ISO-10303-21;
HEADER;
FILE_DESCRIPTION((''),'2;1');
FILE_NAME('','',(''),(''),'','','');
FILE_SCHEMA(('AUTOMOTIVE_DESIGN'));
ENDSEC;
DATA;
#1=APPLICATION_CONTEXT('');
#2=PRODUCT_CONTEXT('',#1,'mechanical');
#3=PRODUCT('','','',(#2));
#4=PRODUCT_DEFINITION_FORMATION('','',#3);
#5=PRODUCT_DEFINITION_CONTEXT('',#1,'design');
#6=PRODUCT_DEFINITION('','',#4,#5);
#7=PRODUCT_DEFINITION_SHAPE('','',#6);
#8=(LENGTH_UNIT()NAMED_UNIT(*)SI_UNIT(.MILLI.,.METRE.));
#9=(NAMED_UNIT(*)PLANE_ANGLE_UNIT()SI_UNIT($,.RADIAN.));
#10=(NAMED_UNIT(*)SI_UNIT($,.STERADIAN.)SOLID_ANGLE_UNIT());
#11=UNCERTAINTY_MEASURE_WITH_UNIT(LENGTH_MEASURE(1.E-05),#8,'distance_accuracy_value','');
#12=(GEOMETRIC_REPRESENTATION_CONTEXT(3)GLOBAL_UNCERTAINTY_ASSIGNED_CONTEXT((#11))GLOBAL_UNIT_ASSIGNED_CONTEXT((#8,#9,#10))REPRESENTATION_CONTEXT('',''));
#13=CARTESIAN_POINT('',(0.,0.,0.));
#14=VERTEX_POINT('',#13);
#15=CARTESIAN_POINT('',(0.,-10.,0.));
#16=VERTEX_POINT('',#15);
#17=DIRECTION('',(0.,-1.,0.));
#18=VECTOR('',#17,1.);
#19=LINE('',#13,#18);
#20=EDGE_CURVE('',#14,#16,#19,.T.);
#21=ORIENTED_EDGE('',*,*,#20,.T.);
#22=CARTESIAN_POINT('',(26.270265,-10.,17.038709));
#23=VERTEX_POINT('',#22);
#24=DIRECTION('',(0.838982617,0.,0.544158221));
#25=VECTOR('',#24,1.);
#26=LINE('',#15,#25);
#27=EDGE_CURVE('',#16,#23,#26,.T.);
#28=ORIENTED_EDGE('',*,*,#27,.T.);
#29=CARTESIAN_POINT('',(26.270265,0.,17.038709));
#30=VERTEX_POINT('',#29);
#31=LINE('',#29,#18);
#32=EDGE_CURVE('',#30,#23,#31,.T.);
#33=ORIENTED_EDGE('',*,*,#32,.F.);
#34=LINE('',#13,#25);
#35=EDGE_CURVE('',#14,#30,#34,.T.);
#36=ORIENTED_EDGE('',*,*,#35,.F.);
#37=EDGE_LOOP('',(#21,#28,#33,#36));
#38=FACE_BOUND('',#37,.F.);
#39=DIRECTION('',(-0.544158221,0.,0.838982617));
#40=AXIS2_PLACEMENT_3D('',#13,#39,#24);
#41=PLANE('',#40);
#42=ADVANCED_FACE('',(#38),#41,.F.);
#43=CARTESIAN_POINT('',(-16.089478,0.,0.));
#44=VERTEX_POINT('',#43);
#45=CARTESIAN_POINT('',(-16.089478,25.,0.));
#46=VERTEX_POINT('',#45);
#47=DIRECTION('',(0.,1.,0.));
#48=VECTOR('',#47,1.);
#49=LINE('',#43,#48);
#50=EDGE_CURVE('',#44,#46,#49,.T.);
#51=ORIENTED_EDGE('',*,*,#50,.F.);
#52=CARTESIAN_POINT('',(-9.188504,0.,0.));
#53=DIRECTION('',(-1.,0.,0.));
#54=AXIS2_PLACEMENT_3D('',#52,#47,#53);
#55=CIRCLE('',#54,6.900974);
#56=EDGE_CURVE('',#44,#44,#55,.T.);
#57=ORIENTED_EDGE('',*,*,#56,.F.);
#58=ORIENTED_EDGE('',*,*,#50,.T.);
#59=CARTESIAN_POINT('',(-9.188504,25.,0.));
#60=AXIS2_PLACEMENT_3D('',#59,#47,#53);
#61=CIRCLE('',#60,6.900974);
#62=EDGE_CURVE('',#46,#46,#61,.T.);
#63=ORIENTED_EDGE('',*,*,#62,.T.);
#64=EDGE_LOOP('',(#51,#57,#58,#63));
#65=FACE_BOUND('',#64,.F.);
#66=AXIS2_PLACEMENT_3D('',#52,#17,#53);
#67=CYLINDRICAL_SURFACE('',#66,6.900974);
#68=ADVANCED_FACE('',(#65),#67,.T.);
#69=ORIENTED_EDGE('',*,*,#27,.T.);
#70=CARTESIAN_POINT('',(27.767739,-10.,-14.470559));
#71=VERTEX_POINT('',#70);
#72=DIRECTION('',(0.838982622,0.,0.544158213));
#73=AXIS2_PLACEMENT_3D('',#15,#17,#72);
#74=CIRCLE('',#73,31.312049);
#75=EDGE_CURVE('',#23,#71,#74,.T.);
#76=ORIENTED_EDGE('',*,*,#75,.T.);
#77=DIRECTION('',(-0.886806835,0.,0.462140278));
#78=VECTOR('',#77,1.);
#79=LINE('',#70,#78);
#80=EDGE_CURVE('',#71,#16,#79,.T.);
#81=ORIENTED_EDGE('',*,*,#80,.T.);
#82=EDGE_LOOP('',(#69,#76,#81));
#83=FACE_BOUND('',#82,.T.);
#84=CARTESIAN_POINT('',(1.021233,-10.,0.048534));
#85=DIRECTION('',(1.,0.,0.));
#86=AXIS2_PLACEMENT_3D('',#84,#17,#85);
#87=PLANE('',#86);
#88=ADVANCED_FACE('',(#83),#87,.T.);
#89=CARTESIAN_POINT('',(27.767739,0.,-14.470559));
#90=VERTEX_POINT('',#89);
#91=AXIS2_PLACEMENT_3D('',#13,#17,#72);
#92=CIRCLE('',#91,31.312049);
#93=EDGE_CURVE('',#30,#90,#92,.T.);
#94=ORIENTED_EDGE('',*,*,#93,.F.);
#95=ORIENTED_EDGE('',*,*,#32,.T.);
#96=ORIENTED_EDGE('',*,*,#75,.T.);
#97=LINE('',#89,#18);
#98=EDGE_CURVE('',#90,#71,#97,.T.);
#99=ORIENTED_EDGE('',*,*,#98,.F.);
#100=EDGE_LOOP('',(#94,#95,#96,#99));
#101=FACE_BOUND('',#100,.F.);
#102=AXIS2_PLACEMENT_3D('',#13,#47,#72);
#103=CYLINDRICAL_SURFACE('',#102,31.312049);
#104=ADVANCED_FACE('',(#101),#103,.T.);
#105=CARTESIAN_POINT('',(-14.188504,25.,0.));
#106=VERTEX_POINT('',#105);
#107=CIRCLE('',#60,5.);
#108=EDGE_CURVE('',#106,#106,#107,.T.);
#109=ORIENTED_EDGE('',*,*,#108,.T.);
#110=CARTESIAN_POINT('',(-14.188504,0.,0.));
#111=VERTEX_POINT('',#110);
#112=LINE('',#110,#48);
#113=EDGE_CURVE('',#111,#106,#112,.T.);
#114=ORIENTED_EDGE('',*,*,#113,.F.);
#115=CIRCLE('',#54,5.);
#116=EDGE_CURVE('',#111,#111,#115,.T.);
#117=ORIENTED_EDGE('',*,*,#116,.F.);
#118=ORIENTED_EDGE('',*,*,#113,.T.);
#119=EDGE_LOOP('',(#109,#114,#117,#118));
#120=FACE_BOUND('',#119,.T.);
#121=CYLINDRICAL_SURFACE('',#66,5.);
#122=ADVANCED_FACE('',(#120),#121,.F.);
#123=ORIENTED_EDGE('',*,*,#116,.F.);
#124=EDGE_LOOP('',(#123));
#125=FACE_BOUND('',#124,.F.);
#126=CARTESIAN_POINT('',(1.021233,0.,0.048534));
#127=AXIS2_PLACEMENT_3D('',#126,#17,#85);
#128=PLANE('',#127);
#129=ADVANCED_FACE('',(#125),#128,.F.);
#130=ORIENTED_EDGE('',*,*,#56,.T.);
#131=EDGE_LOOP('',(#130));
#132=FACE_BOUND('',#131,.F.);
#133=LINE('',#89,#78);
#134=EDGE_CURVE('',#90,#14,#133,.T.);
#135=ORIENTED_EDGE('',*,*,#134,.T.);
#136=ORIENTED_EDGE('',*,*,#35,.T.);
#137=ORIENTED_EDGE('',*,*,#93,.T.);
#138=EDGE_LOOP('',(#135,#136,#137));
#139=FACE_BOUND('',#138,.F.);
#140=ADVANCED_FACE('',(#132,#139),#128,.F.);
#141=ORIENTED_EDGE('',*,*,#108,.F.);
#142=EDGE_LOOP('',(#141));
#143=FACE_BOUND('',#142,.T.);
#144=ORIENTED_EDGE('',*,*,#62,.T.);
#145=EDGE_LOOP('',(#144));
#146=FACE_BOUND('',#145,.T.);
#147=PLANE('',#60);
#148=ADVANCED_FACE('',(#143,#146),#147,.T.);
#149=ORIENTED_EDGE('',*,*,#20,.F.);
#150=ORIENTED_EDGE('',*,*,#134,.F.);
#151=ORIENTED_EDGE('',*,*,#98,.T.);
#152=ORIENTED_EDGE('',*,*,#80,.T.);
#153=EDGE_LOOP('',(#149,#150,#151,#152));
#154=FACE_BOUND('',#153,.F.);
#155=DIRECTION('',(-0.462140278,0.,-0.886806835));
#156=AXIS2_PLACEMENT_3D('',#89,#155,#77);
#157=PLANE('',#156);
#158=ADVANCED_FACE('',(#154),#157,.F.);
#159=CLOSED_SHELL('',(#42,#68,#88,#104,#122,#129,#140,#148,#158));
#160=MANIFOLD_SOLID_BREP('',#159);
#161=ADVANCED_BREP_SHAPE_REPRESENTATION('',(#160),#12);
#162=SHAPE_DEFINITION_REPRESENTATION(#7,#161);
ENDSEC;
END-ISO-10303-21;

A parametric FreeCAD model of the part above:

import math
import FreeCAD as App
import Part
import Sketcher
from FreeCAD import Vector

doc = App.newDocument("Part")
body = doc.addObject("PartDesign::Body", "Body")

# Sketch on XZ plane
sketch1 = doc.addObject("Sketcher::SketchObject", "Sketch")
body.addObject(sketch1)
sketch1.AttachmentSupport = (doc.XZ_Plane, [""])
sketch1.MapMode = "FlatFace"
sketch1.addGeometry(Part.LineSegment(Vector(0, 0, 0), Vector(26, 17, 0)), False)
sketch1.addGeometry(Part.ArcOfCircle(Part.Circle(Vector(0, 0, 0), Vector(0, 0, 1), 31), math.radians(33), math.radians(332)), False)
sketch1.addGeometry(Part.LineSegment(Vector(28, -14, 0), Vector(0, 0, 0)), False)
sketch1.addConstraint(Sketcher.Constraint("Coincident", 0, 2, 1, 1))
sketch1.addConstraint(Sketcher.Constraint("Coincident", 1, 2, 2, 1))
sketch1.addConstraint(Sketcher.Constraint("Coincident", 2, 2, 0, 1))
sketch1.addConstraint(Sketcher.Constraint("Coincident", 1, 3, -1, 1))
sketch1.addConstraint(Sketcher.Constraint("Coincident", 2, 2, -1, 1))
sketch1.addConstraint(Sketcher.Constraint("Radius", 1, 31.312049))
sketch1.addConstraint(Sketcher.Constraint("DistanceY", -1, 1, 0, 2, 17.038709))
sketch1.addConstraint(Sketcher.Constraint("DistanceX", -1, 1, 1, 2, 27.767739))
pad1 = doc.addObject("PartDesign::Pad", "Pad")
body.addObject(pad1)
pad1.Profile = sketch1
pad1.Length = 10

# Sketch on XZ plane
sketch2 = doc.addObject("Sketcher::SketchObject", "Sketch001")
body.addObject(sketch2)
sketch2.AttachmentSupport = (doc.XZ_Plane, [""])
sketch2.MapMode = "FlatFace"
sketch2.addGeometry(Part.Circle(Vector(-9, 0, 0), Vector(0, 0, 1), 7), False)
sketch2.addGeometry(Part.Circle(Vector(-9, 0, 0), Vector(0, 0, 1), 5), False)
sketch2.addConstraint(Sketcher.Constraint("Coincident", 1, 3, 0, 3))
sketch2.addConstraint(Sketcher.Constraint("PointOnObject", 0, 3, -1))
sketch2.addConstraint(Sketcher.Constraint("Diameter", 1, 10.0))
sketch2.addConstraint(Sketcher.Constraint("Diameter", 0, 13.801948))
sketch2.addConstraint(Sketcher.Constraint("DistanceX", 0, 3, -1, 1, 9.188504))
pad2 = doc.addObject("PartDesign::Pad", "Pad001")
body.addObject(pad2)
pad2.Profile = sketch2
pad2.Length = 25
pad2.Reversed = True

doc.recompute()
